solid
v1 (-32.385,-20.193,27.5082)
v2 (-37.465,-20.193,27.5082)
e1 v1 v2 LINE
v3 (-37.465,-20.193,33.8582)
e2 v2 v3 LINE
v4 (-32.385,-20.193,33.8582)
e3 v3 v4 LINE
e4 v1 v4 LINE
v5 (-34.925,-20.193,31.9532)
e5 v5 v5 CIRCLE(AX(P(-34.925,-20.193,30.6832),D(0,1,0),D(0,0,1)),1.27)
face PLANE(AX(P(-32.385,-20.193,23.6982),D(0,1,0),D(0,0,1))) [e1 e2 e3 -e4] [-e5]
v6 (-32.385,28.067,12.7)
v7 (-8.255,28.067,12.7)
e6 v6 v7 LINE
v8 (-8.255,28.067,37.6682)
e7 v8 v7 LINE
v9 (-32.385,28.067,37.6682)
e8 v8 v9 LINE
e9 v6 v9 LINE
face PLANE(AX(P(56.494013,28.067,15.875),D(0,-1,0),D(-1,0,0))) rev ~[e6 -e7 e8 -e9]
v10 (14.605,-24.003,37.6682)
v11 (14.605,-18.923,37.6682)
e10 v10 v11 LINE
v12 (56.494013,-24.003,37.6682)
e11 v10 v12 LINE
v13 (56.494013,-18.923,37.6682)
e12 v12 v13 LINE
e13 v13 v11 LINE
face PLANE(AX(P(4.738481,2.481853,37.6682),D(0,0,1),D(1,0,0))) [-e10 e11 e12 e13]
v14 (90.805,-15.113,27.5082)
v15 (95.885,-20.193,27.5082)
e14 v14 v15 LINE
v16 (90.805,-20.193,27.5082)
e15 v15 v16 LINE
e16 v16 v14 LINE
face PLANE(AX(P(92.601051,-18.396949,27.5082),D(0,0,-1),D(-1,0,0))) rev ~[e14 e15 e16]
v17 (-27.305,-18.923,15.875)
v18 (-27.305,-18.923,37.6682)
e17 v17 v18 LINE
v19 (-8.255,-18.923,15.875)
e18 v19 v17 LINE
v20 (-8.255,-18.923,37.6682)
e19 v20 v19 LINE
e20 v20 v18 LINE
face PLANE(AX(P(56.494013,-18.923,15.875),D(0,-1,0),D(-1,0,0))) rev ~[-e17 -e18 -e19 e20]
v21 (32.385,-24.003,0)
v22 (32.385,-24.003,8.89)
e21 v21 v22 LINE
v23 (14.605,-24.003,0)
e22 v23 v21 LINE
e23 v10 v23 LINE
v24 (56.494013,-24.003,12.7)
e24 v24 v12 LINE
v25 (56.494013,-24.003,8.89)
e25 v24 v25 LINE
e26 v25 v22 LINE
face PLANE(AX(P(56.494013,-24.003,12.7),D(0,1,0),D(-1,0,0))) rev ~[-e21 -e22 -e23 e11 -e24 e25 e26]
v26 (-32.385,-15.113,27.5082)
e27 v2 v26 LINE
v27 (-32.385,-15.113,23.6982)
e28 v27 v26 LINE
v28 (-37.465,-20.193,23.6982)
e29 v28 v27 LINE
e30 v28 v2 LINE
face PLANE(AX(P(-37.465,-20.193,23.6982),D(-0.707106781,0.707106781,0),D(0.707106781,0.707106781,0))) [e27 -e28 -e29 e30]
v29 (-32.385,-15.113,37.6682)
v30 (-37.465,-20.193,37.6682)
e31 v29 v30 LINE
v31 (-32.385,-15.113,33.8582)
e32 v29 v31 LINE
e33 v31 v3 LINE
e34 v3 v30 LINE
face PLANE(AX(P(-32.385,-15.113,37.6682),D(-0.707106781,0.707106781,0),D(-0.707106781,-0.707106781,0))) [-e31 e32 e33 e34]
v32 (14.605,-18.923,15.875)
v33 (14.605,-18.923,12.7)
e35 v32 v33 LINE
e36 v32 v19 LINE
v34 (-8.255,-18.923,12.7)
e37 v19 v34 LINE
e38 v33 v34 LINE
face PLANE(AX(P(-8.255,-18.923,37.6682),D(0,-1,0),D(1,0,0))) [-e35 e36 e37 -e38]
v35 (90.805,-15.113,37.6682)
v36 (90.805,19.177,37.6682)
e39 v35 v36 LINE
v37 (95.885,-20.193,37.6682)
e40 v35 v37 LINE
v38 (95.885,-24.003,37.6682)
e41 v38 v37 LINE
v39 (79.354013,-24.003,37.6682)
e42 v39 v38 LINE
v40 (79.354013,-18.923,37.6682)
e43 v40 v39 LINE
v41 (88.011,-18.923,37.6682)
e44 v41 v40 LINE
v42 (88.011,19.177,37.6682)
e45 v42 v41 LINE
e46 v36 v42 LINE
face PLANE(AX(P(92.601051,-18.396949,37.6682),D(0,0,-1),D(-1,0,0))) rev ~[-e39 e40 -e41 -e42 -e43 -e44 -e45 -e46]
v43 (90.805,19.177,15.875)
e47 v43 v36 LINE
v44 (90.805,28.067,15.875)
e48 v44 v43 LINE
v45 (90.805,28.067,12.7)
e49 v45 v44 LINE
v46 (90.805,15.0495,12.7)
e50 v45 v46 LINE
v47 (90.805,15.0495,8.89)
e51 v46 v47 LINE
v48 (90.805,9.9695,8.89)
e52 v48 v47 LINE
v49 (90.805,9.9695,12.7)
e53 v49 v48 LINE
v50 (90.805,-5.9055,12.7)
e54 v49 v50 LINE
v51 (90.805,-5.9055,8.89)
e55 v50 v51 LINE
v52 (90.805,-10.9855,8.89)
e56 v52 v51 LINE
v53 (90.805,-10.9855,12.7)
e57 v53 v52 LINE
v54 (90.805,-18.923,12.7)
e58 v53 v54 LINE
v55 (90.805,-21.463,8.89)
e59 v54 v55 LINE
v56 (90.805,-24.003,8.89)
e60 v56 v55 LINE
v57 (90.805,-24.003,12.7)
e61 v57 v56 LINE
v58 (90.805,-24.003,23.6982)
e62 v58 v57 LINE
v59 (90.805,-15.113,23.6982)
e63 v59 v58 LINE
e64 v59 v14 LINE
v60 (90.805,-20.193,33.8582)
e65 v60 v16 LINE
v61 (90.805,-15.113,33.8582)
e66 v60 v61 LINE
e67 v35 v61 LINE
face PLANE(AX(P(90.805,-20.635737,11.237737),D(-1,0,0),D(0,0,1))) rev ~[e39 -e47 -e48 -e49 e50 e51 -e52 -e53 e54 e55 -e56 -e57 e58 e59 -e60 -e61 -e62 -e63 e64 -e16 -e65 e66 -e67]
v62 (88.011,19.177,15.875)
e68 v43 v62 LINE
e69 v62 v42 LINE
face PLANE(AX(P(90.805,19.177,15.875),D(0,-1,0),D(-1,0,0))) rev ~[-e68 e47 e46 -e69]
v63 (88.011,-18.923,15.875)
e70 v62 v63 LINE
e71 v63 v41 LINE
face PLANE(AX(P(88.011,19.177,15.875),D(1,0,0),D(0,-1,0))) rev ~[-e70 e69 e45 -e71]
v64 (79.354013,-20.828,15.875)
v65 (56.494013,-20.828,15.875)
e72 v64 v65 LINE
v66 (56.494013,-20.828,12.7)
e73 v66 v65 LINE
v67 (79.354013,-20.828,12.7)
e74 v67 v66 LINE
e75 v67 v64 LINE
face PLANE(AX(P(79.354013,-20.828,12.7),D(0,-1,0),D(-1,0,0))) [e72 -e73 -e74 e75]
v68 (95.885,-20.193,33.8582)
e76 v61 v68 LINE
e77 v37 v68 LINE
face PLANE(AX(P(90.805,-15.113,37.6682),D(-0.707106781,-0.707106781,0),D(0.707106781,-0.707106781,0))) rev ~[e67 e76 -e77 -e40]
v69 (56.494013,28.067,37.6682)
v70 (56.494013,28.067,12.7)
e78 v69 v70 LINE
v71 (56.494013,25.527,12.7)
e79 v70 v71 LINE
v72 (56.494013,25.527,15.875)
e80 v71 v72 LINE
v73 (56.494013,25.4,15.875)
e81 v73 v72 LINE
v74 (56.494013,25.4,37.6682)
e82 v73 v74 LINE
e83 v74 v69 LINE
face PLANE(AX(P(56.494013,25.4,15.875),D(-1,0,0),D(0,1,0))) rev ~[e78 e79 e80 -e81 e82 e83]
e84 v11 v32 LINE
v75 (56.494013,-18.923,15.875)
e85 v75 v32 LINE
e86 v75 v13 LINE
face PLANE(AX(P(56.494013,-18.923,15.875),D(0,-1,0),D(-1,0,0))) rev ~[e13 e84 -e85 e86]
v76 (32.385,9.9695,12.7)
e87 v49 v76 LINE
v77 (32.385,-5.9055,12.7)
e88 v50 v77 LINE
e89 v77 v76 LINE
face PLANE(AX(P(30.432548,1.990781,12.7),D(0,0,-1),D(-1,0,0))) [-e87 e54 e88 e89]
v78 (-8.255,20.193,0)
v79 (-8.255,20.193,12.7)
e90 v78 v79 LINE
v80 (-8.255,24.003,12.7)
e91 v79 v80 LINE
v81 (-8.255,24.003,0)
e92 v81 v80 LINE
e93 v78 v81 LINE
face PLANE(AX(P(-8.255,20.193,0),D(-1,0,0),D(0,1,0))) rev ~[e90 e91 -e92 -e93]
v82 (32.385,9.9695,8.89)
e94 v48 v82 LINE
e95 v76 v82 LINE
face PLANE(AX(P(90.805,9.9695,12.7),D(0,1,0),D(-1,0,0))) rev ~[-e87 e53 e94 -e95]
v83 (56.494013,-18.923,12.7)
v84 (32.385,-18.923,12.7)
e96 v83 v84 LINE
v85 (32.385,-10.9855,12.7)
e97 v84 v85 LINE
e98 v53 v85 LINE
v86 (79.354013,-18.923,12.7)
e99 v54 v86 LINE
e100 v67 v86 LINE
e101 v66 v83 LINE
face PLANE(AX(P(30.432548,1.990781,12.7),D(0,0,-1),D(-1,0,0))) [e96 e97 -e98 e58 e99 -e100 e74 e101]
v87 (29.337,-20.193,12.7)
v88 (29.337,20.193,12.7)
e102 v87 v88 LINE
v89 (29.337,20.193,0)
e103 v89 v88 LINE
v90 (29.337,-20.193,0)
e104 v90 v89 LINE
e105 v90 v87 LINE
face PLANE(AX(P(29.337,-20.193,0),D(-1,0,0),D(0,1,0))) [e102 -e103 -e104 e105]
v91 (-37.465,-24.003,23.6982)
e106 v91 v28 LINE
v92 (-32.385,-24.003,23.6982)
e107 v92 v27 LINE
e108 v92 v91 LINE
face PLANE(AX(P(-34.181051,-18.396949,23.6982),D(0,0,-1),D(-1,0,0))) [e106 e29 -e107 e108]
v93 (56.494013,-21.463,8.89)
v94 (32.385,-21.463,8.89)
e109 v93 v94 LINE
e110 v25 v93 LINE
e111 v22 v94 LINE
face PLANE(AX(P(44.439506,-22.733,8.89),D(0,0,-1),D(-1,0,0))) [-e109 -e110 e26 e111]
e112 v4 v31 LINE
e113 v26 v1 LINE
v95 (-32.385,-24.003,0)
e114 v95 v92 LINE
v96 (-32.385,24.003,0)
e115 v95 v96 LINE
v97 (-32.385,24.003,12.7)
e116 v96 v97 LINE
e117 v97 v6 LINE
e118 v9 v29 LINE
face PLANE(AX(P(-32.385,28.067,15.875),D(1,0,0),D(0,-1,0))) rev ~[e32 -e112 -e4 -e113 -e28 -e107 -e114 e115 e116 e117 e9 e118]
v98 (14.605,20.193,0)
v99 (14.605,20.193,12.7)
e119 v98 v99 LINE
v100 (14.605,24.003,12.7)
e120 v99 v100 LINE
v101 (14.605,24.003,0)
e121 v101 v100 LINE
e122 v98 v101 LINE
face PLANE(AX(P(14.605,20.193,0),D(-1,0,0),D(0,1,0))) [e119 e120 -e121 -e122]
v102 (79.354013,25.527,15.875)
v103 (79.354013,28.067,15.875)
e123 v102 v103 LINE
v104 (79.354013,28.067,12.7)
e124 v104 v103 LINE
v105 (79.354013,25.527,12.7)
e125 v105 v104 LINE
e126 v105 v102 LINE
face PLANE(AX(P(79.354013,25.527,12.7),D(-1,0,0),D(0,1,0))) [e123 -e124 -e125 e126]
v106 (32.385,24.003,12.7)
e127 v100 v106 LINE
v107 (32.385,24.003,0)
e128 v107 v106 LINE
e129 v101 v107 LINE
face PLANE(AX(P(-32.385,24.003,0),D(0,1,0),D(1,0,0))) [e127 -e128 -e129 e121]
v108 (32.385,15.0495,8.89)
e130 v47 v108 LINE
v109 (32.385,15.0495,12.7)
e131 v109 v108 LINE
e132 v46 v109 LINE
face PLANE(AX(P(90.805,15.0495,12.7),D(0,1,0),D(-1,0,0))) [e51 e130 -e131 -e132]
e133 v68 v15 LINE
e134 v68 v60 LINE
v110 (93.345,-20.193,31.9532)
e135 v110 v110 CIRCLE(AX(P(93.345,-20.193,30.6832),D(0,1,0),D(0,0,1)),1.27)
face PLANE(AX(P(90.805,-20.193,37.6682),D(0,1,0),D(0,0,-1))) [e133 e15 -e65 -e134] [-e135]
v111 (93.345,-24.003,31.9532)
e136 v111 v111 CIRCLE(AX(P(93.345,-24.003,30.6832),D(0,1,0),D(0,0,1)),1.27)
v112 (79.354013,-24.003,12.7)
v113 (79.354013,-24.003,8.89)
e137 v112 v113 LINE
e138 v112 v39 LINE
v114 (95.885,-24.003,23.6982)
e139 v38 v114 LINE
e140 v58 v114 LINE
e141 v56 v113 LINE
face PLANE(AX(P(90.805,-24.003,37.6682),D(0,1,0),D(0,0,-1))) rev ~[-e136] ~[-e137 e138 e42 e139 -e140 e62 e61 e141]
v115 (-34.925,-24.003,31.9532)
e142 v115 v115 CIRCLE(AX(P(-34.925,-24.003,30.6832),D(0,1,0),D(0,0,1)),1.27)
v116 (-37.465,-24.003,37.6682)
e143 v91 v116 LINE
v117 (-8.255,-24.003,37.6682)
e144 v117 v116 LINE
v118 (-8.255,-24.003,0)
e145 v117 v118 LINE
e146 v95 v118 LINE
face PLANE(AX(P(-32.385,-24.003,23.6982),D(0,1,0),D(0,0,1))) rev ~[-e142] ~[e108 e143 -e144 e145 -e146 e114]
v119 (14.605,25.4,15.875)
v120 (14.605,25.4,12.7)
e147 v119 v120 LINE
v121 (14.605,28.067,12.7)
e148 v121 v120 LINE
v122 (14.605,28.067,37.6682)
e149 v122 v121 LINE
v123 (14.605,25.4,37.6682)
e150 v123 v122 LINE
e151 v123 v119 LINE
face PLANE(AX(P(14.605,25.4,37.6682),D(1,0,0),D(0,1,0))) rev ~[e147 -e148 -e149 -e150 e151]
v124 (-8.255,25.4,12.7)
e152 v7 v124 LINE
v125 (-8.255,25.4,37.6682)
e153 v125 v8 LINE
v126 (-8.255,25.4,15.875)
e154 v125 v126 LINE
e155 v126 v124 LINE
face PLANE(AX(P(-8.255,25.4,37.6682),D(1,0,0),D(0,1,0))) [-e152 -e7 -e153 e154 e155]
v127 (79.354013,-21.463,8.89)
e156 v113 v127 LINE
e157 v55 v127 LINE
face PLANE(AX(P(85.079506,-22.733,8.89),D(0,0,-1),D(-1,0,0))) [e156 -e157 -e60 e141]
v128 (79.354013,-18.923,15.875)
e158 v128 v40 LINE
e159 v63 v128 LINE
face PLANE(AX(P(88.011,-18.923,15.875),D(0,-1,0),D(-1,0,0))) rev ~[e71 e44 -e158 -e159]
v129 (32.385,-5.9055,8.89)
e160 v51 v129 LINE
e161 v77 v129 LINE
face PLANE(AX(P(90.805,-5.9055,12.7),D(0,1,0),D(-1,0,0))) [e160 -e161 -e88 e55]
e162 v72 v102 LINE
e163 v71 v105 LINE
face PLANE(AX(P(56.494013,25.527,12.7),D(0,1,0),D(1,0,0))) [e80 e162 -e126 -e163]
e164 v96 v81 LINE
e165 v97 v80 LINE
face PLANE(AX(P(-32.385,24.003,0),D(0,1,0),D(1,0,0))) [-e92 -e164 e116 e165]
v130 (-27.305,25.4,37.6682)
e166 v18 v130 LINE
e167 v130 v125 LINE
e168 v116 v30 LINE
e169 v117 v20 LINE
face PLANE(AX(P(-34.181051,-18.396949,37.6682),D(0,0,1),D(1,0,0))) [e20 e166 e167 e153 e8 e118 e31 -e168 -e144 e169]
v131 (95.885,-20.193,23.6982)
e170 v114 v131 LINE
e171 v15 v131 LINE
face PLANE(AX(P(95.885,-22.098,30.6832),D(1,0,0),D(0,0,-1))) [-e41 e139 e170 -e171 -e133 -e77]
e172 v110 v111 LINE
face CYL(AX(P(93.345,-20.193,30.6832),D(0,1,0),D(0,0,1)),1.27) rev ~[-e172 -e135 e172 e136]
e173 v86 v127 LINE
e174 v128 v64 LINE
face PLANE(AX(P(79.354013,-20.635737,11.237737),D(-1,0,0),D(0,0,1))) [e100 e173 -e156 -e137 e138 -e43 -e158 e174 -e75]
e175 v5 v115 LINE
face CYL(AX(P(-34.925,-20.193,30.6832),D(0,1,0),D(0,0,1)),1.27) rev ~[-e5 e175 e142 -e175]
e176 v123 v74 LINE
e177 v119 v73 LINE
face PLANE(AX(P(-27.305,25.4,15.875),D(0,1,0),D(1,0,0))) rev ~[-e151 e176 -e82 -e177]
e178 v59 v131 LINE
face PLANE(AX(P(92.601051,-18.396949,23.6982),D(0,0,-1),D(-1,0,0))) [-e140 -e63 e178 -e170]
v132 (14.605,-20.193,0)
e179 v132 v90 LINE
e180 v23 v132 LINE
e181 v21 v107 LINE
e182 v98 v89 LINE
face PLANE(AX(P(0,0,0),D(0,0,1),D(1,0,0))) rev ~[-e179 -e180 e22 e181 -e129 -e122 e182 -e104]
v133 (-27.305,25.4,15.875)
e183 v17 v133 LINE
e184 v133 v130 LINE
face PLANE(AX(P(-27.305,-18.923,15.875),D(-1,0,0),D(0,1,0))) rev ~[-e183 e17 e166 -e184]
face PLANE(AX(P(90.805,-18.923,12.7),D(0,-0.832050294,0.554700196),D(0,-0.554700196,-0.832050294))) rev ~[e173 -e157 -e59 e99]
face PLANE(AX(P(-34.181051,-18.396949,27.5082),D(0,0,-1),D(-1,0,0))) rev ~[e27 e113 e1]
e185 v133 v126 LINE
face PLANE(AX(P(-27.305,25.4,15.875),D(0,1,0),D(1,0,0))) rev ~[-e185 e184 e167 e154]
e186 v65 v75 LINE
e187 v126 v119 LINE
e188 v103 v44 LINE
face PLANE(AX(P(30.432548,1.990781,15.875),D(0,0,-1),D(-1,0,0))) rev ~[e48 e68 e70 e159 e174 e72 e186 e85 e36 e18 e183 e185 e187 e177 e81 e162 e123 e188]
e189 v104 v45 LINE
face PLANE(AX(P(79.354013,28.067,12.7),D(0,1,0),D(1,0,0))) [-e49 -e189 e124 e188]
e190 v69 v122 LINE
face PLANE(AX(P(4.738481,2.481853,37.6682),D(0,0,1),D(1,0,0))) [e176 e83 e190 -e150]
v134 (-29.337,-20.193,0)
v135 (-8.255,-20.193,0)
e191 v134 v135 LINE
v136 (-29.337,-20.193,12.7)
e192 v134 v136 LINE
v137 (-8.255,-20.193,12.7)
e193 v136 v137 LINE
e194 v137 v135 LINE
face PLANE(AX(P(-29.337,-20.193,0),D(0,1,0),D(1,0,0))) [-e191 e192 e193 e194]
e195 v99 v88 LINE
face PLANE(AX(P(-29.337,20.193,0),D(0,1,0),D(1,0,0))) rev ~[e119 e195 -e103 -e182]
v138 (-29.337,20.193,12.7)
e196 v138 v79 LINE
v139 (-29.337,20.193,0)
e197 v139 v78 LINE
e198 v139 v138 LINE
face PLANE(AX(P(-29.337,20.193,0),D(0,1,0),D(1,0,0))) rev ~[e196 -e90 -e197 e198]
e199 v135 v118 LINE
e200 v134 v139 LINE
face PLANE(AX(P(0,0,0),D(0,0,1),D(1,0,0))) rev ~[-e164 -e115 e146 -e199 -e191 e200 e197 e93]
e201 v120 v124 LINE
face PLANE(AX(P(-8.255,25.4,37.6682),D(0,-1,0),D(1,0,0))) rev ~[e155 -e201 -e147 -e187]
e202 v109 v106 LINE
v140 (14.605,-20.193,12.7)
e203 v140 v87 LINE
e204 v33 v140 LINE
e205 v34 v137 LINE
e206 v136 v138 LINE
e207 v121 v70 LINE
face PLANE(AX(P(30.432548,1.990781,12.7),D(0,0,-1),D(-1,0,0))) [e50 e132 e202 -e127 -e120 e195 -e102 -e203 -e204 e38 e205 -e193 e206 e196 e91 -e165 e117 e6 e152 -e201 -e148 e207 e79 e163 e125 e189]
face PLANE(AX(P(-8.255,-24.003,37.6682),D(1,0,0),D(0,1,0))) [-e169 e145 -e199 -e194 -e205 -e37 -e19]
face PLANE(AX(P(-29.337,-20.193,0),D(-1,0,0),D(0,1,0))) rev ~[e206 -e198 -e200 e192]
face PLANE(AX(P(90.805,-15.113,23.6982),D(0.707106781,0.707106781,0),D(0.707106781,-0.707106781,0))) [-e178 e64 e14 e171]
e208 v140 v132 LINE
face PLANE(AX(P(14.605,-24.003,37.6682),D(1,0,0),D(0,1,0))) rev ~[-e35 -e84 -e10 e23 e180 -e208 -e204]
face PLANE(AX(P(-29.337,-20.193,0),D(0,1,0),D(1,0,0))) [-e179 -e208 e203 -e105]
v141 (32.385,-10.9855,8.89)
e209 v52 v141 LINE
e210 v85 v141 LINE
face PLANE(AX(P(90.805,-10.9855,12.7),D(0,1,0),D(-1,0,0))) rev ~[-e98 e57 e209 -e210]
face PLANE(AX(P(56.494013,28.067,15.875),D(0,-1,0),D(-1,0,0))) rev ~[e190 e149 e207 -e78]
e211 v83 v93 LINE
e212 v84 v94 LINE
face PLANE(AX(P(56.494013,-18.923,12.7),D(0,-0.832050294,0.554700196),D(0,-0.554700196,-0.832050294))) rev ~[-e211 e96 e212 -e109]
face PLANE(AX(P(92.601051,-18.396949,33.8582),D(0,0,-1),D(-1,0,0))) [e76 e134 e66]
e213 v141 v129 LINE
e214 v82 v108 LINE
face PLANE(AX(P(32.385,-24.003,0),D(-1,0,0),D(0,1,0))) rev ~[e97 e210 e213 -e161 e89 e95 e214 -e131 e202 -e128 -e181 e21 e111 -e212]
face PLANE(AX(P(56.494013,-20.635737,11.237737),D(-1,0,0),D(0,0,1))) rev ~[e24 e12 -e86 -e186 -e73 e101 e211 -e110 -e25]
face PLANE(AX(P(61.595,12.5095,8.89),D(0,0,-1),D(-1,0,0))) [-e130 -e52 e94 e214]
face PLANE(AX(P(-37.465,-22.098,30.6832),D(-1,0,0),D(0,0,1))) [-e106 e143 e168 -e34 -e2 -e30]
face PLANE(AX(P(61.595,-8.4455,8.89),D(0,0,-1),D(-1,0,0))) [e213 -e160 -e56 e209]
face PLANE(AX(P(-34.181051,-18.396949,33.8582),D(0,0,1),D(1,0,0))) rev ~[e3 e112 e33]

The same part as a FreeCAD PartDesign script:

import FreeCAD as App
import Part
import Sketcher

V = App.Vector
Q = App.Units.Quantity


def add_polygon(sketch, points):
    """Adds a closed chain of lines whose ends are joined by coincident constraints."""
    first, n = sketch.GeometryCount, len(points)
    for a, b in zip(points, points[1:] + points[:1]):
        sketch.addGeometry(Part.LineSegment(App.Vector(*a, 0), App.Vector(*b, 0)), False)
    for i in range(n):
        sketch.addConstraint(Sketcher.Constraint("Coincident", first + i, 2, first + (i + 1) % n, 1))

doc = App.newDocument("Part")
params = doc.addObject("Spreadsheet::Sheet", "Params")
for row, (alias, value) in enumerate([
    ("sketch1_width", "2.55 in"),
    ("sketch1_width2", "2.31 in"),
    ("sketch1_height", "1.89 in"),
    ("sketch1_height2", "1.59 in"),
    ("pad1_length", "0.5 in"),
    ("sketch2_width", "0.9 in"),
    ("sketch2_height", "0.1 in"),
    ("sketch2_height2", "2.05 in"),
    ("sketch2_height3", "0.125 in"),
    ("pad2_length", "0.125 in"),
    ("sketch3_height", "0.2 in"),
    ("sketch3_height2", "1.7 in"),
    ("sketch3_width", "0.11 in"),
    ("sketch3_height3", "2.05 in"),
    ("sketch3_height4", "1.745 in"),
    ("pad3_length", "0.858 in"),
    ("sketch4_width", "0.9 in"),
    ("sketch4_height", "0.2 in"),
    ("sketch4_height2", "0.105 in"),
    ("sketch5_width", "0.9 in"),
    ("sketch5_height", "0.15 in"),
    ("sketch5_height2", "0.045 in"),
    ("pocket2_length", "0.5 in"),
    ("sketch6_width", "0.15 in"),
    ("sketch6_height", "0.55 in"),
    ("pad4_length", "0.2 in"),
    ("sketch7_width", "0.2 in"),
    ("pad5_length", "0.15 in"),
    ("sketch8_diameter", "0.1 in"),
    ("sketch9_width", "0.2 in"),
    ("pad6_length", "0.15 in"),
    ("sketch10_width", "0.15 in"),
    ("sketch10_height", "0.55 in"),
    ("pad7_length", "0.2 in"),
    ("sketch11_diameter", "0.1 in"),
    ("sketch12_width", "0.2 in"),
    ("pad8_length", "0.15 in"),
    ("sketch13_width", "0.2 in"),
    ("pad9_length", "0.15 in"),
    ("sketch14_width", "2.3 in"),
    ("sketch14_height", "0.2 in"),
    ("sketch14_height2", "0.1 in"),
    ("pad10_length", "0.15 in"),
    ("sketch15_width", "0.1 in"),
    ("sketch15_height", "0.15 in"),
    ("pad11_length", "24.109013 mm"),
    ("sketch16_width", "0.1 in"),
    ("sketch16_height", "0.15 in"),
    ("pad12_length", "11.450987 mm"),
], start=1):
    params.set(f"A{row}", alias)
    params.set(f"B{row}", "=" + value)
    params.setAlias(f"B{row}", alias)

body = doc.addObject("PartDesign::Body", "Body")

# Sketch on XY plane
sketch1 = body.newObject("Sketcher::SketchObject", "Sketch")
sketch1.AttachmentSupport = (doc.getObject("XY_Plane"), [""])
sketch1.MapMode = "FlatFace"
add_polygon(sketch1, [(-32, 24), (-32, -24), (32, -24), (32, 24)])  # lines 0-3
add_polygon(sketch1, [(29, -20), (-29, -20), (-29, 20), (29, 20)])  # lines 4-7
sketch1.addConstraint(Sketcher.Constraint("Vertical", 0))
sketch1.addConstraint(Sketcher.Constraint("Horizontal", 1))
sketch1.addConstraint(Sketcher.Constraint("Vertical", 2))
sketch1.addConstraint(Sketcher.Constraint("Horizontal", 3))
sketch1.addConstraint(Sketcher.Constraint("Horizontal", 4))
sketch1.addConstraint(Sketcher.Constraint("Vertical", 5))
sketch1.addConstraint(Sketcher.Constraint("Horizontal", 6))
sketch1.addConstraint(Sketcher.Constraint("Vertical", 7))
sketch1.addConstraint(Sketcher.Constraint("Symmetric", 0, 2, 2, 2, -1, 1))
sketch1.addConstraint(Sketcher.Constraint("Symmetric", 4, 2, 6, 2, -1, 1))
sketch1.addConstraint(Sketcher.Constraint("DistanceX", 1, 1, 1, 2, Q("2.55 in")))
sketch1.addConstraint(Sketcher.Constraint("DistanceX", 4, 2, 4, 1, Q("2.31 in")))
sketch1.addConstraint(Sketcher.Constraint("DistanceY", 0, 2, 0, 1, Q("1.89 in")))
sketch1.addConstraint(Sketcher.Constraint("DistanceY", 5, 1, 5, 2, Q("1.59 in")))
sketch1.setExpression("Constraints[18]", "Params.sketch1_width")
sketch1.setExpression("Constraints[19]", "Params.sketch1_width2")
sketch1.setExpression("Constraints[20]", "Params.sketch1_height")
sketch1.setExpression("Constraints[21]", "Params.sketch1_height2")
pad1 = body.newObject("PartDesign::Pad", "Pad")
pad1.Profile = sketch1
pad1.setExpression("Length", "Params.pad1_length")

# Sketch on XY plane
sketch2 = body.newObject("Sketcher::SketchObject", "Sketch001")
sketch2.AttachmentSupport = (doc.getObject("XY_Plane"), [""])
sketch2.MapMode = "FlatFace"
sketch2.AttachmentOffset = App.Placement(V(0, 0, 0.5 * 25.4), App.Rotation())
add_polygon(sketch2, [(79.4, -20.8), (79.4, -24), (90.8, -24), (90.8, 28.1), (79.4, 28.1), (79.4, 25.5), (56.5, 25.5), (56.5, 28.1), (-32.4, 28.1), (-32.4, -24), (56.5, -24), (56.5, -20.8)])  # lines 0-11
sketch2.addConstraint(Sketcher.Constraint("Vertical", 0))
sketch2.addConstraint(Sketcher.Constraint("Horizontal", 1))
sketch2.addConstraint(Sketcher.Constraint("Vertical", 2))
sketch2.addConstraint(Sketcher.Constraint("Horizontal", 3))
sketch2.addConstraint(Sketcher.Constraint("Vertical", 4))
sketch2.addConstraint(Sketcher.Constraint("Horizontal", 5))
sketch2.addConstraint(Sketcher.Constraint("Vertical", 6))
sketch2.addConstraint(Sketcher.Constraint("Horizontal", 7))
sketch2.addConstraint(Sketcher.Constraint("Vertical", 8))
sketch2.addConstraint(Sketcher.Constraint("Horizontal", 9))
sketch2.addConstraint(Sketcher.Constraint("Vertical", 10))
sketch2.addConstraint(Sketcher.Constraint("Horizontal", 11))
sketch2.addConstraint(Sketcher.Constraint("Horizontal", 3, 2, 6, 2))
sketch2.addConstraint(Sketcher.Constraint("Horizontal", 1, 2, 8, 2))
sketch2.addConstraint(Sketcher.Constraint("Vertical", 0, 2, 3, 2))
sketch2.addConstraint(Sketcher.Constraint("Vertical", 6, 2, 9, 2))
sketch2.addConstraint(Sketcher.Constraint("DistanceX", 5, 2, 5, 1, Q("0.9 in")))
sketch2.addConstraint(Sketcher.Constraint("DistanceY", 4, 2, 4, 1, Q("0.1 in")))
sketch2.addConstraint(Sketcher.Constraint("DistanceY", 2, 1, 2, 2, Q("2.05 in")))
sketch2.addConstraint(Sketcher.Constraint("DistanceY", 0, 2, 0, 1, Q("0.125 in")))
sketch2.addConstraint(Sketcher.Constraint("DistanceY", 10, 2, -1, 1, Q("0.82 in")))
sketch2.addConstraint(Sketcher.Constraint("DistanceX", 7, 2, 2, 2, Q("4.85 in")))
sketch2.addConstraint(Sketcher.Constraint("DistanceX", -1, 1, 1, 2, Q("3.575 in")))
sketch2.addConstraint(Sketcher.Constraint("DistanceX", 1, 1, 1, 2, 11.450987))
sketch2.setExpression("Constraints[28]", "Params.sketch2_width")
sketch2.setExpression("Constraints[29]", "Params.sketch2_height")
sketch2.setExpression("Constraints[30]", "Params.sketch2_height2")
sketch2.setExpression("Constraints[31]", "Params.sketch2_height3")
pad2 = body.newObject("PartDesign::Pad", "Pad001")
pad2.Profile = sketch2
pad2.setExpression("Length", "Params.pad2_length")

# Sketch on XY plane
sketch3 = body.newObject("Sketcher::SketchObject", "Sketch002")
sketch3.AttachmentSupport = (doc.getObject("XY_Plane"), [""])
sketch3.MapMode = "FlatFace"
sketch3.AttachmentOffset = App.Placement(V(0, 0, 0.625 * 25.4), App.Rotation())
add_polygon(sketch3, [(56.5, 28.1), (-32.4, 28.1), (-32.4, -24), (56.5, -24), (56.5, -18.9), (-27.3, -18.9), (-27.3, 25.4), (56.5, 25.4)])  # lines 0-7
add_polygon(sketch3, [(88, -18.9), (79.4, -18.9), (79.4, -24), (90.8, -24), (90.8, 19.2), (88, 19.2)])  # lines 8-13
sketch3.addConstraint(Sketcher.Constraint("Horizontal", 0))
sketch3.addConstraint(Sketcher.Constraint("Vertical", 1))
sketch3.addConstraint(Sketcher.Constraint("Horizontal", 2))
sketch3.addConstraint(Sketcher.Constraint("Vertical", 3))
sketch3.addConstraint(Sketcher.Constraint("Horizontal", 4))
sketch3.addConstraint(Sketcher.Constraint("Vertical", 5))
sketch3.addConstraint(Sketcher.Constraint("Horizontal", 6))
sketch3.addConstraint(Sketcher.Constraint("Vertical", 7))
sketch3.addConstraint(Sketcher.Constraint("Horizontal", 8))
sketch3.addConstraint(Sketcher.Constraint("Vertical", 9))
sketch3.addConstraint(Sketcher.Constraint("Horizontal", 10))
sketch3.addConstraint(Sketcher.Constraint("Vertical", 11))
sketch3.addConstraint(Sketcher.Constraint("Horizontal", 12))
sketch3.addConstraint(Sketcher.Constraint("Vertical", 13))
sketch3.addConstraint(Sketcher.Constraint("Horizontal", 4, 2, 8, 2))
sketch3.addConstraint(Sketcher.Constraint("Horizontal", 2, 2, 9, 2))
sketch3.addConstraint(Sketcher.Constraint("Vertical", 3, 2, 6, 2))
sketch3.addConstraint(Sketcher.Constraint("DistanceY", 3, 1, 3, 2, Q("0.2 in")))
sketch3.addConstraint(Sketcher.Constraint("DistanceY", 11, 1, 11, 2, Q("1.7 in")))
sketch3.addConstraint(Sketcher.Constraint("DistanceY", -1, 1, 5, 2, Q("1 in")))
sketch3.addConstraint(Sketcher.Constraint("DistanceX", 12, 2, 12, 1, Q("0.11 in")))
sketch3.addConstraint(Sketcher.Constraint("DistanceY", 1, 2, 1, 1, Q("2.05 in")))
sketch3.addConstraint(Sketcher.Constraint("DistanceX", 1, 2, 4, 2, Q("0.2 in")))
sketch3.addConstraint(Sketcher.Constraint("DistanceX", 3, 2, 8, 2, Q("0.9 in")))
sketch3.addConstraint(Sketcher.Constraint("DistanceY", 5, 1, 5, 2, Q("1.745 in")))
sketch3.addConstraint(Sketcher.Constraint("DistanceX", 0, 2, -1, 1, Q("1.275 in")))
sketch3.addConstraint(Sketcher.Constraint("DistanceX", -1, 1, 10, 2, Q("3.575 in")))
sketch3.addConstraint(Sketcher.Constraint("DistanceX", 0, 2, 0, 1, 88.879013))
sketch3.setExpression("Constraints[31]", "Params.sketch3_height")
sketch3.setExpression("Constraints[32]", "Params.sketch3_height2")
sketch3.setExpression("Constraints[34]", "Params.sketch3_width")
sketch3.setExpression("Constraints[35]", "Params.sketch3_height3")
sketch3.setExpression("Constraints[38]", "Params.sketch3_height4")
pad3 = body.newObject("PartDesign::Pad", "Pad002")
pad3.Profile = sketch3
pad3.setExpression("Length", "Params.pad3_length")

# Sketch on XY plane
sketch4 = body.newObject("Sketcher::SketchObject", "Sketch003")
sketch4.AttachmentSupport = (doc.getObject("XY_Plane"), [""])
sketch4.MapMode = "FlatFace"
sketch4.AttachmentOffset = App.Placement(V(0, 0, 1.483 * 25.4), App.Rotation())
add_polygon(sketch4, [(-8.3, 28.1), (-8.3, 25.4), (14.6, 25.4), (14.6, 28.1)])  # lines 0-3
add_polygon(sketch4, [(-8.3, -18.9), (-8.3, -24), (14.6, -24), (14.6, -18.9)])  # lines 4-7
sketch4.addConstraint(Sketcher.Constraint("Vertical", 0))
sketch4.addConstraint(Sketcher.Constraint("Horizontal", 1))
sketch4.addConstraint(Sketcher.Constraint("Vertical", 2))
sketch4.addConstraint(Sketcher.Constraint("Horizontal", 3))
sketch4.addConstraint(Sketcher.Constraint("Vertical", 4))
sketch4.addConstraint(Sketcher.Constraint("Horizontal", 5))
sketch4.addConstraint(Sketcher.Constraint("Vertical", 6))
sketch4.addConstraint(Sketcher.Constraint("Horizontal", 7))
sketch4.addConstraint(Sketcher.Constraint("Vertical", 3, 2, 4, 2))
sketch4.addConstraint(Sketcher.Constraint("Vertical", 2, 2, 5, 2))
sketch4.addConstraint(Sketcher.Constraint("DistanceX", 1, 1, 1, 2, Q("0.9 in")))
sketch4.addConstraint(Sketcher.Constraint("DistanceY", 4, 2, 4, 1, Q("0.2 in")))
sketch4.addConstraint(Sketcher.Constraint("DistanceY", -1, 1, 0, 2, Q("1 in")))
sketch4.addConstraint(Sketcher.Constraint("DistanceY", 0, 2, 0, 1, Q("0.105 in")))
sketch4.addConstraint(Sketcher.Constraint("DistanceY", 4, 2, 3, 2, Q("2.05 in")))
sketch4.addConstraint(Sketcher.Constraint("DistanceX", 0, 2, -1, 1, Q("0.325 in")))
sketch4.setExpression("Constraints[18]", "Params.sketch4_width")
sketch4.setExpression("Constraints[19]", "Params.sketch4_height")
sketch4.setExpression("Constraints[21]", "Params.sketch4_height2")
pocket1 = body.newObject("PartDesign::Pocket", "Pocket")
pocket1.Profile = sketch4
pocket1.Type = "ThroughAll"

# Sketch on XY plane
sketch5 = body.newObject("Sketcher::SketchObject", "Sketch004")
sketch5.AttachmentSupport = (doc.getObject("XY_Plane"), [""])
sketch5.MapMode = "FlatFace"
add_polygon(sketch5, [(14.6, 24), (14.6, 20.2), (-8.3, 20.2), (-8.3, 24)])  # lines 0-3
add_polygon(sketch5, [(14.6, -20.2), (14.6, -21.3), (-8.3, -21.3), (-8.3, -20.2)])  # lines 4-7
sketch5.addConstraint(Sketcher.Constraint("Vertical", 0))
sketch5.addConstraint(Sketcher.Constraint("Horizontal", 1))
sketch5.addConstraint(Sketcher.Constraint("Vertical", 2))
sketch5.addConstraint(Sketcher.Constraint("Horizontal", 3))
sketch5.addConstraint(Sketcher.Constraint("Vertical", 4))
sketch5.addConstraint(Sketcher.Constraint("Horizontal", 5))
sketch5.addConstraint(Sketcher.Constraint("Vertical", 6))
sketch5.addConstraint(Sketcher.Constraint("Horizontal", 7))
sketch5.addConstraint(Sketcher.Constraint("Symmetric", 1, 2, 6, 2, -1))
sketch5.addConstraint(Sketcher.Constraint("Vertical", 3, 2, 4, 2))
sketch5.addConstraint(Sketcher.Constraint("DistanceX", 1, 2, 1, 1, Q("0.9 in")))
sketch5.addConstraint(Sketcher.Constraint("DistanceY", 0, 2, 0, 1, Q("0.15 in")))
sketch5.addConstraint(Sketcher.Constraint("DistanceY", 4, 2, 4, 1, Q("0.045 in")))
sketch5.addConstraint(Sketcher.Constraint("DistanceY", 4, 2, -1, 1, Q("0.84 in")))
sketch5.addConstraint(Sketcher.Constraint("DistanceX", -1, 1, 0, 2, Q("0.575 in")))
sketch5.setExpression("Constraints[18]", "Params.sketch5_width")
sketch5.setExpression("Constraints[19]", "Params.sketch5_height")
sketch5.setExpression("Constraints[20]", "Params.sketch5_height2")
pocket2 = body.newObject("PartDesign::Pocket", "Pocket001")
pocket2.Profile = sketch5
pocket2.setExpression("Length", "Params.pocket2_length")
pocket2.Reversed = True

# Sketch on YZ plane
sketch6 = body.newObject("Sketcher::SketchObject", "Sketch005")
sketch6.AttachmentSupport = (doc.getObject("YZ_Plane"), [""])
sketch6.MapMode = "FlatFace"
sketch6.AttachmentOffset = App.Placement(V(0, 0, -1.275 * 25.4), App.Rotation())
add_polygon(sketch6, [(-20.2, 23.7), (-24, 23.7), (-24, 37.7), (-20.2, 37.7)])  # lines 0-3
sketch6.addConstraint(Sketcher.Constraint("Horizontal", 0))
sketch6.addConstraint(Sketcher.Constraint("Vertical", 1))
sketch6.addConstraint(Sketcher.Constraint("Horizontal", 2))
sketch6.addConstraint(Sketcher.Constraint("Vertical", 3))
sketch6.addConstraint(Sketcher.Constraint("DistanceX", 0, 2, 0, 1, Q("0.15 in")))
sketch6.addConstraint(Sketcher.Constraint("DistanceY", 1, 1, 1, 2, Q("0.55 in")))
sketch6.addConstraint(Sketcher.Constraint("DistanceX", 0, 2, -1, 1, Q("0.945 in")))
sketch6.addConstraint(Sketcher.Constraint("DistanceY", -1, 1, 0, 2, Q("0.933 in")))
sketch6.setExpression("Constraints[8]", "Params.sketch6_width")
sketch6.setExpression("Constraints[9]", "Params.sketch6_height")
pad4 = body.newObject("PartDesign::Pad", "Pad003")
pad4.Profile = sketch6
pad4.setExpression("Length", "Params.pad4_length")
pad4.Reversed = True

# Sketch on XY plane
sketch7 = body.newObject("Sketcher::SketchObject", "Sketch006")
sketch7.AttachmentSupport = (doc.getObject("XY_Plane"), [""])
sketch7.MapMode = "FlatFace"
sketch7.AttachmentOffset = App.Placement(V(0, 0, 1.483 * 25.4), App.Rotation())
add_polygon(sketch7, [(-37, -20), (-32, -20), (-32, -15)])  # lines 0-2
sketch7.addConstraint(Sketcher.Constraint("Horizontal", 0))
sketch7.addConstraint(Sketcher.Constraint("Vertical", 1))
sketch7.addConstraint(Sketcher.Constraint("Equal", 0, 1))
sketch7.addConstraint(Sketcher.Constraint("DistanceX", 0, 1, 0, 2, Q("0.2 in")))
sketch7.addConstraint(Sketcher.Constraint("DistanceX", 0, 2, -1, 1, Q("1.275 in")))
sketch7.addConstraint(Sketcher.Constraint("DistanceY", 0, 2, -1, 1, Q("0.795 in")))
sketch7.setExpression("Constraints[6]", "Params.sketch7_width")
pad5 = body.newObject("PartDesign::Pad", "Pad004")
pad5.Profile = sketch7
pad5.setExpression("Length", "Params.pad5_length")
pad5.Reversed = True

# Sketch on XZ plane
sketch8 = body.newObject("Sketcher::SketchObject", "Sketch007")
sketch8.AttachmentSupport = (doc.getObject("XZ_Plane"), [""])
sketch8.MapMode = "FlatFace"
sketch8.AttachmentOffset = App.Placement(V(0, 0, 0.795 * 25.4), App.Rotation())
sketch8.addGeometry(Part.Circle(V(-34.9, 30.7, 0), V(0, 0, 1), 1.3), False)
sketch8.addConstraint(Sketcher.Constraint("Diameter", 0, Q("0.1 in")))
sketch8.addConstraint(Sketcher.Constraint("DistanceX", 0, 3, -1, 1, Q("1.375 in")))
sketch8.addConstraint(Sketcher.Constraint("DistanceY", -1, 1, 0, 3, Q("1.208 in")))
sketch8.setExpression("Constraints[0]", "Params.sketch8_diameter")
pocket3 = body.newObject("PartDesign::Pocket", "Pocket002")
pocket3.Profile = sketch8
pocket3.Type = "ThroughAll"
pocket3.Reversed = True

# Sketch on XY plane
sketch9 = body.newObject("Sketcher::SketchObject", "Sketch008")
sketch9.AttachmentSupport = (doc.getObject("XY_Plane"), [""])
sketch9.MapMode = "FlatFace"
sketch9.AttachmentOffset = App.Placement(V(0, 0, 0.933 * 25.4), App.Rotation())
add_polygon(sketch9, [(-32, -15), (-32, -20), (-37, -20)])  # lines 0-2
sketch9.addConstraint(Sketcher.Constraint("Vertical", 0))
sketch9.addConstraint(Sketcher.Constraint("Horizontal", 1))
sketch9.addConstraint(Sketcher.Constraint("Equal", 1, 0))
sketch9.addConstraint(Sketcher.Constraint("DistanceX", 1, 2, 1, 1, Q("0.2 in")))
sketch9.addConstraint(Sketcher.Constraint("DistanceX", 0, 2, -1, 1, Q("1.275 in")))
sketch9.addConstraint(Sketcher.Constraint("DistanceY", 0, 2, -1, 1, Q("0.795 in")))
sketch9.setExpression("Constraints[6]", "Params.sketch9_width")
pad6 = body.newObject("PartDesign::Pad", "Pad005")
pad6.Profile = sketch9
pad6.setExpression("Length", "Params.pad6_length")

# Sketch on YZ plane
sketch10 = body.newObject("Sketcher::SketchObject", "Sketch009")
sketch10.AttachmentSupport = (doc.getObject("YZ_Plane"), [""])
sketch10.MapMode = "FlatFace"
sketch10.AttachmentOffset = App.Placement(V(0, 0, 3.575 * 25.4), App.Rotation())
add_polygon(sketch10, [(-20.2, 37.7), (-24, 37.7), (-24, 23.7), (-20.2, 23.7)])  # lines 0-3
sketch10.addConstraint(Sketcher.Constraint("Horizontal", 0))
sketch10.addConstraint(Sketcher.Constraint("Vertical", 1))
sketch10.addConstraint(Sketcher.Constraint("Horizontal", 2))
sketch10.addConstraint(Sketcher.Constraint("Vertical", 3))
sketch10.addConstraint(Sketcher.Constraint("DistanceX", 0, 2, 0, 1, Q("0.15 in")))
sketch10.addConstraint(Sketcher.Constraint("DistanceY", 1, 2, 1, 1, Q("0.55 in")))
sketch10.addConstraint(Sketcher.Constraint("DistanceX", 0, 2, -1, 1, Q("0.945 in")))
sketch10.addConstraint(Sketcher.Constraint("DistanceY", -1, 1, 0, 2, Q("1.483 in")))
sketch10.setExpression("Constraints[8]", "Params.sketch10_width")
sketch10.setExpression("Constraints[9]", "Params.sketch10_height")
pad7 = body.newObject("PartDesign::Pad", "Pad006")
pad7.Profile = sketch10
pad7.setExpression("Length", "Params.pad7_length")

# Sketch on XZ plane
sketch11 = body.newObject("Sketcher::SketchObject", "Sketch010")
sketch11.AttachmentSupport = (doc.getObject("XZ_Plane"), [""])
sketch11.MapMode = "FlatFace"
sketch11.AttachmentOffset = App.Placement(V(0, 0, 0.795 * 25.4), App.Rotation())
sketch11.addGeometry(Part.Circle(V(93.3, 30.7, 0), V(0, 0, 1), 1.3), False)
sketch11.addConstraint(Sketcher.Constraint("Diameter", 0, Q("0.1 in")))
sketch11.addConstraint(Sketcher.Constraint("DistanceX", -1, 1, 0, 3, Q("3.675 in")))
sketch11.addConstraint(Sketcher.Constraint("DistanceY", -1, 1, 0, 3, Q("1.208 in")))
sketch11.setExpression("Constraints[0]", "Params.sketch11_diameter")
pocket4 = body.newObject("PartDesign::Pocket", "Pocket003")
pocket4.Profile = sketch11
pocket4.Type = "ThroughAll"
pocket4.Reversed = True

# Sketch on XY plane
sketch12 = body.newObject("Sketcher::SketchObject", "Sketch011")
sketch12.AttachmentSupport = (doc.getObject("XY_Plane"), [""])
sketch12.MapMode = "FlatFace"
sketch12.AttachmentOffset = App.Placement(V(0, 0, 1.483 * 25.4), App.Rotation())
add_polygon(sketch12, [(91, -20), (96, -20), (91, -15)])  # lines 0-2
sketch12.addConstraint(Sketcher.Constraint("Horizontal", 0))
sketch12.addConstraint(Sketcher.Constraint("Vertical", 2))
sketch12.addConstraint(Sketcher.Constraint("Equal", 0, 2))
sketch12.addConstraint(Sketcher.Constraint("DistanceX", 0, 1, 0, 2, Q("0.2 in")))
sketch12.addConstraint(Sketcher.Constraint("DistanceX", -1, 1, 0, 2, Q("3.775 in")))
sketch12.addConstraint(Sketcher.Constraint("DistanceY", 0, 2, -1, 1, Q("0.795 in")))
sketch12.setExpression("Constraints[6]", "Params.sketch12_width")
pad8 = body.newObject("PartDesign::Pad", "Pad007")
pad8.Profile = sketch12
pad8.setExpression("Length", "Params.pad8_length")
pad8.Reversed = True

# Sketch on XY plane
sketch13 = body.newObject("Sketcher::SketchObject", "Sketch012")
sketch13.AttachmentSupport = (doc.getObject("XY_Plane"), [""])
sketch13.MapMode = "FlatFace"
sketch13.AttachmentOffset = App.Placement(V(0, 0, 0.933 * 25.4), App.Rotation())
add_polygon(sketch13, [(96, -20), (91, -20), (91, -15)])  # lines 0-2
sketch13.addConstraint(Sketcher.Constraint("Horizontal", 0))
sketch13.addConstraint(Sketcher.Constraint("Vertical", 1))
sketch13.addConstraint(Sketcher.Constraint("Equal", 0, 1))
sketch13.addConstraint(Sketcher.Constraint("DistanceX", 0, 2, 0, 1, Q("0.2 in")))
sketch13.addConstraint(Sketcher.Constraint("DistanceX", -1, 1, 0, 2, Q("3.575 in")))
sketch13.addConstraint(Sketcher.Constraint("DistanceY", 0, 2, -1, 1, Q("0.795 in")))
sketch13.setExpression("Constraints[6]", "Params.sketch13_width")
pad9 = body.newObject("PartDesign::Pad", "Pad008")
pad9.Profile = sketch13
pad9.setExpression("Length", "Params.pad9_length")

# Sketch on XY plane
sketch14 = body.newObject("Sketcher::SketchObject", "Sketch013")
sketch14.AttachmentSupport = (doc.getObject("XY_Plane"), [""])
sketch14.MapMode = "FlatFace"
sketch14.AttachmentOffset = App.Placement(V(0, 0, 0.5 * 25.4), App.Rotation())
add_polygon(sketch14, [(90.8, 15), (90.8, 10), (32.4, 10), (32.4, 15)])  # lines 0-3
add_polygon(sketch14, [(90.8, -5.9), (90.8, -11), (32.4, -11), (32.4, -5.9)])  # lines 4-7
add_polygon(sketch14, [(56.5, -21.5), (56.5, -24), (32.4, -24), (32.4, -21.5)])  # lines 8-11
add_polygon(sketch14, [(90.8, -21.5), (90.8, -24), (79.4, -24), (79.4, -21.5)])  # lines 12-15
sketch14.addConstraint(Sketcher.Constraint("Vertical", 0))
sketch14.addConstraint(Sketcher.Constraint("Horizontal", 1))
sketch14.addConstraint(Sketcher.Constraint("Vertical", 2))
sketch14.addConstraint(Sketcher.Constraint("Horizontal", 3))
sketch14.addConstraint(Sketcher.Constraint("Vertical", 4))
sketch14.addConstraint(Sketcher.Constraint("Horizontal", 5))
sketch14.addConstraint(Sketcher.Constraint("Vertical", 6))
sketch14.addConstraint(Sketcher.Constraint("Horizontal", 7))
sketch14.addConstraint(Sketcher.Constraint("Vertical", 8))
sketch14.addConstraint(Sketcher.Constraint("Horizontal", 9))
sketch14.addConstraint(Sketcher.Constraint("Vertical", 10))
sketch14.addConstraint(Sketcher.Constraint("Horizontal", 11))
sketch14.addConstraint(Sketcher.Constraint("Vertical", 12))
sketch14.addConstraint(Sketcher.Constraint("Horizontal", 13))
sketch14.addConstraint(Sketcher.Constraint("Vertical", 14))
sketch14.addConstraint(Sketcher.Constraint("Horizontal", 15))
sketch14.addConstraint(Sketcher.Constraint("Horizontal", 9, 2, 12, 2))
sketch14.addConstraint(Sketcher.Constraint("Horizontal", 11, 2, 14, 2))
sketch14.addConstraint(Sketcher.Constraint("Vertical", 3, 2, 4, 2))
sketch14.addConstraint(Sketcher.Constraint("Vertical", 2, 2, 5, 2))
sketch14.addConstraint(Sketcher.Constraint("Vertical", 6, 2, 9, 2))
sketch14.addConstraint(Sketcher.Constraint("Vertical", 7, 2, 12, 2))
sketch14.addConstraint(Sketcher.Constraint("Equal", 2, 4))
sketch14.addConstraint(Sketcher.Constraint("DistanceX", 1, 2, 1, 1, Q("2.3 in")))
sketch14.addConstraint(Sketcher.Constraint("DistanceY", 0, 2, 0, 1, Q("0.2 in")))
sketch14.addConstraint(Sketcher.Constraint("DistanceY", 8, 2, 8, 1, Q("0.1 in")))
sketch14.addConstraint(Sketcher.Constraint("DistanceX", 8, 2, 13, 2, Q("0.9 in")))
sketch14.addConstraint(Sketcher.Constraint("DistanceX", -1, 1, 0, 2, Q("3.575 in")))
sketch14.addConstraint(Sketcher.Constraint("DistanceY", 8, 2, -1, 1, Q("0.945 in")))
sketch14.addConstraint(Sketcher.Constraint("DistanceY", 4, 2, 0, 2, Q("0.825 in")))
sketch14.addConstraint(Sketcher.Constraint("DistanceY", -1, 1, 0, 2, Q("0.3925 in")))
sketch14.addConstraint(Sketcher.Constraint("DistanceX", 9, 2, 9, 1, 24.109013))
sketch14.setExpression("Constraints[39]", "Params.sketch14_width")
sketch14.setExpression("Constraints[40]", "Params.sketch14_height")
sketch14.setExpression("Constraints[41]", "Params.sketch14_height2")
pad10 = body.newObject("PartDesign::Pad", "Pad009")
pad10.Profile = sketch14
pad10.setExpression("Length", "Params.pad10_length")
pad10.Reversed = True

# Sketch on YZ plane
sketch15 = body.newObject("Sketcher::SketchObject", "Sketch014")
sketch15.AttachmentSupport = (doc.getObject("YZ_Plane"), [""])
sketch15.MapMode = "FlatFace"
sketch15.AttachmentOffset = App.Placement(V(0, 0, 56.494013), App.Rotation())
add_polygon(sketch15, [(-21.5, 12.7), (-21.5, 8.9), (-18.9, 12.7)])  # lines 0-2
sketch15.addConstraint(Sketcher.Constraint("Vertical", 0))
sketch15.addConstraint(Sketcher.Constraint("Horizontal", 2))
sketch15.addConstraint(Sketcher.Constraint("DistanceX", 2, 2, 2, 1, Q("0.1 in")))
sketch15.addConstraint(Sketcher.Constraint("DistanceY", 0, 2, 0, 1, Q("0.15 in")))
sketch15.addConstraint(Sketcher.Constraint("DistanceY", -1, 1, 1, 2, Q("0.5 in")))
sketch15.addConstraint(Sketcher.Constraint("DistanceX", 0, 2, -1, 1, Q("0.845 in")))
sketch15.setExpression("Constraints[5]", "Params.sketch15_width")
sketch15.setExpression("Constraints[6]", "Params.sketch15_height")
pad11 = body.newObject("PartDesign::Pad", "Pad010")
pad11.Profile = sketch15
pad11.setExpression("Length", "Params.pad11_length")
pad11.Reversed = True

# Sketch on YZ plane
sketch16 = body.newObject("Sketcher::SketchObject", "Sketch015")
sketch16.AttachmentSupport = (doc.getObject("YZ_Plane"), [""])
sketch16.MapMode = "FlatFace"
sketch16.AttachmentOffset = App.Placement(V(0, 0, 3.575 * 25.4), App.Rotation())
add_polygon(sketch16, [(-21.5, 12.7), (-21.5, 8.9), (-18.9, 12.7)])  # lines 0-2
sketch16.addConstraint(Sketcher.Constraint("Vertical", 0))
sketch16.addConstraint(Sketcher.Constraint("Horizontal", 2))
sketch16.addConstraint(Sketcher.Constraint("DistanceX", 2, 2, 2, 1, Q("0.1 in")))
sketch16.addConstraint(Sketcher.Constraint("DistanceY", 0, 2, 0, 1, Q("0.15 in")))
sketch16.addConstraint(Sketcher.Constraint("DistanceY", -1, 1, 1, 2, Q("0.5 in")))
sketch16.addConstraint(Sketcher.Constraint("DistanceX", 0, 2, -1, 1, Q("0.845 in")))
sketch16.setExpression("Constraints[5]", "Params.sketch16_width")
sketch16.setExpression("Constraints[6]", "Params.sketch16_height")
pad12 = body.newObject("PartDesign::Pad", "Pad011")
pad12.Profile = sketch16
pad12.setExpression("Length", "Params.pad12_length")
pad12.Reversed = True

doc.recompute()
